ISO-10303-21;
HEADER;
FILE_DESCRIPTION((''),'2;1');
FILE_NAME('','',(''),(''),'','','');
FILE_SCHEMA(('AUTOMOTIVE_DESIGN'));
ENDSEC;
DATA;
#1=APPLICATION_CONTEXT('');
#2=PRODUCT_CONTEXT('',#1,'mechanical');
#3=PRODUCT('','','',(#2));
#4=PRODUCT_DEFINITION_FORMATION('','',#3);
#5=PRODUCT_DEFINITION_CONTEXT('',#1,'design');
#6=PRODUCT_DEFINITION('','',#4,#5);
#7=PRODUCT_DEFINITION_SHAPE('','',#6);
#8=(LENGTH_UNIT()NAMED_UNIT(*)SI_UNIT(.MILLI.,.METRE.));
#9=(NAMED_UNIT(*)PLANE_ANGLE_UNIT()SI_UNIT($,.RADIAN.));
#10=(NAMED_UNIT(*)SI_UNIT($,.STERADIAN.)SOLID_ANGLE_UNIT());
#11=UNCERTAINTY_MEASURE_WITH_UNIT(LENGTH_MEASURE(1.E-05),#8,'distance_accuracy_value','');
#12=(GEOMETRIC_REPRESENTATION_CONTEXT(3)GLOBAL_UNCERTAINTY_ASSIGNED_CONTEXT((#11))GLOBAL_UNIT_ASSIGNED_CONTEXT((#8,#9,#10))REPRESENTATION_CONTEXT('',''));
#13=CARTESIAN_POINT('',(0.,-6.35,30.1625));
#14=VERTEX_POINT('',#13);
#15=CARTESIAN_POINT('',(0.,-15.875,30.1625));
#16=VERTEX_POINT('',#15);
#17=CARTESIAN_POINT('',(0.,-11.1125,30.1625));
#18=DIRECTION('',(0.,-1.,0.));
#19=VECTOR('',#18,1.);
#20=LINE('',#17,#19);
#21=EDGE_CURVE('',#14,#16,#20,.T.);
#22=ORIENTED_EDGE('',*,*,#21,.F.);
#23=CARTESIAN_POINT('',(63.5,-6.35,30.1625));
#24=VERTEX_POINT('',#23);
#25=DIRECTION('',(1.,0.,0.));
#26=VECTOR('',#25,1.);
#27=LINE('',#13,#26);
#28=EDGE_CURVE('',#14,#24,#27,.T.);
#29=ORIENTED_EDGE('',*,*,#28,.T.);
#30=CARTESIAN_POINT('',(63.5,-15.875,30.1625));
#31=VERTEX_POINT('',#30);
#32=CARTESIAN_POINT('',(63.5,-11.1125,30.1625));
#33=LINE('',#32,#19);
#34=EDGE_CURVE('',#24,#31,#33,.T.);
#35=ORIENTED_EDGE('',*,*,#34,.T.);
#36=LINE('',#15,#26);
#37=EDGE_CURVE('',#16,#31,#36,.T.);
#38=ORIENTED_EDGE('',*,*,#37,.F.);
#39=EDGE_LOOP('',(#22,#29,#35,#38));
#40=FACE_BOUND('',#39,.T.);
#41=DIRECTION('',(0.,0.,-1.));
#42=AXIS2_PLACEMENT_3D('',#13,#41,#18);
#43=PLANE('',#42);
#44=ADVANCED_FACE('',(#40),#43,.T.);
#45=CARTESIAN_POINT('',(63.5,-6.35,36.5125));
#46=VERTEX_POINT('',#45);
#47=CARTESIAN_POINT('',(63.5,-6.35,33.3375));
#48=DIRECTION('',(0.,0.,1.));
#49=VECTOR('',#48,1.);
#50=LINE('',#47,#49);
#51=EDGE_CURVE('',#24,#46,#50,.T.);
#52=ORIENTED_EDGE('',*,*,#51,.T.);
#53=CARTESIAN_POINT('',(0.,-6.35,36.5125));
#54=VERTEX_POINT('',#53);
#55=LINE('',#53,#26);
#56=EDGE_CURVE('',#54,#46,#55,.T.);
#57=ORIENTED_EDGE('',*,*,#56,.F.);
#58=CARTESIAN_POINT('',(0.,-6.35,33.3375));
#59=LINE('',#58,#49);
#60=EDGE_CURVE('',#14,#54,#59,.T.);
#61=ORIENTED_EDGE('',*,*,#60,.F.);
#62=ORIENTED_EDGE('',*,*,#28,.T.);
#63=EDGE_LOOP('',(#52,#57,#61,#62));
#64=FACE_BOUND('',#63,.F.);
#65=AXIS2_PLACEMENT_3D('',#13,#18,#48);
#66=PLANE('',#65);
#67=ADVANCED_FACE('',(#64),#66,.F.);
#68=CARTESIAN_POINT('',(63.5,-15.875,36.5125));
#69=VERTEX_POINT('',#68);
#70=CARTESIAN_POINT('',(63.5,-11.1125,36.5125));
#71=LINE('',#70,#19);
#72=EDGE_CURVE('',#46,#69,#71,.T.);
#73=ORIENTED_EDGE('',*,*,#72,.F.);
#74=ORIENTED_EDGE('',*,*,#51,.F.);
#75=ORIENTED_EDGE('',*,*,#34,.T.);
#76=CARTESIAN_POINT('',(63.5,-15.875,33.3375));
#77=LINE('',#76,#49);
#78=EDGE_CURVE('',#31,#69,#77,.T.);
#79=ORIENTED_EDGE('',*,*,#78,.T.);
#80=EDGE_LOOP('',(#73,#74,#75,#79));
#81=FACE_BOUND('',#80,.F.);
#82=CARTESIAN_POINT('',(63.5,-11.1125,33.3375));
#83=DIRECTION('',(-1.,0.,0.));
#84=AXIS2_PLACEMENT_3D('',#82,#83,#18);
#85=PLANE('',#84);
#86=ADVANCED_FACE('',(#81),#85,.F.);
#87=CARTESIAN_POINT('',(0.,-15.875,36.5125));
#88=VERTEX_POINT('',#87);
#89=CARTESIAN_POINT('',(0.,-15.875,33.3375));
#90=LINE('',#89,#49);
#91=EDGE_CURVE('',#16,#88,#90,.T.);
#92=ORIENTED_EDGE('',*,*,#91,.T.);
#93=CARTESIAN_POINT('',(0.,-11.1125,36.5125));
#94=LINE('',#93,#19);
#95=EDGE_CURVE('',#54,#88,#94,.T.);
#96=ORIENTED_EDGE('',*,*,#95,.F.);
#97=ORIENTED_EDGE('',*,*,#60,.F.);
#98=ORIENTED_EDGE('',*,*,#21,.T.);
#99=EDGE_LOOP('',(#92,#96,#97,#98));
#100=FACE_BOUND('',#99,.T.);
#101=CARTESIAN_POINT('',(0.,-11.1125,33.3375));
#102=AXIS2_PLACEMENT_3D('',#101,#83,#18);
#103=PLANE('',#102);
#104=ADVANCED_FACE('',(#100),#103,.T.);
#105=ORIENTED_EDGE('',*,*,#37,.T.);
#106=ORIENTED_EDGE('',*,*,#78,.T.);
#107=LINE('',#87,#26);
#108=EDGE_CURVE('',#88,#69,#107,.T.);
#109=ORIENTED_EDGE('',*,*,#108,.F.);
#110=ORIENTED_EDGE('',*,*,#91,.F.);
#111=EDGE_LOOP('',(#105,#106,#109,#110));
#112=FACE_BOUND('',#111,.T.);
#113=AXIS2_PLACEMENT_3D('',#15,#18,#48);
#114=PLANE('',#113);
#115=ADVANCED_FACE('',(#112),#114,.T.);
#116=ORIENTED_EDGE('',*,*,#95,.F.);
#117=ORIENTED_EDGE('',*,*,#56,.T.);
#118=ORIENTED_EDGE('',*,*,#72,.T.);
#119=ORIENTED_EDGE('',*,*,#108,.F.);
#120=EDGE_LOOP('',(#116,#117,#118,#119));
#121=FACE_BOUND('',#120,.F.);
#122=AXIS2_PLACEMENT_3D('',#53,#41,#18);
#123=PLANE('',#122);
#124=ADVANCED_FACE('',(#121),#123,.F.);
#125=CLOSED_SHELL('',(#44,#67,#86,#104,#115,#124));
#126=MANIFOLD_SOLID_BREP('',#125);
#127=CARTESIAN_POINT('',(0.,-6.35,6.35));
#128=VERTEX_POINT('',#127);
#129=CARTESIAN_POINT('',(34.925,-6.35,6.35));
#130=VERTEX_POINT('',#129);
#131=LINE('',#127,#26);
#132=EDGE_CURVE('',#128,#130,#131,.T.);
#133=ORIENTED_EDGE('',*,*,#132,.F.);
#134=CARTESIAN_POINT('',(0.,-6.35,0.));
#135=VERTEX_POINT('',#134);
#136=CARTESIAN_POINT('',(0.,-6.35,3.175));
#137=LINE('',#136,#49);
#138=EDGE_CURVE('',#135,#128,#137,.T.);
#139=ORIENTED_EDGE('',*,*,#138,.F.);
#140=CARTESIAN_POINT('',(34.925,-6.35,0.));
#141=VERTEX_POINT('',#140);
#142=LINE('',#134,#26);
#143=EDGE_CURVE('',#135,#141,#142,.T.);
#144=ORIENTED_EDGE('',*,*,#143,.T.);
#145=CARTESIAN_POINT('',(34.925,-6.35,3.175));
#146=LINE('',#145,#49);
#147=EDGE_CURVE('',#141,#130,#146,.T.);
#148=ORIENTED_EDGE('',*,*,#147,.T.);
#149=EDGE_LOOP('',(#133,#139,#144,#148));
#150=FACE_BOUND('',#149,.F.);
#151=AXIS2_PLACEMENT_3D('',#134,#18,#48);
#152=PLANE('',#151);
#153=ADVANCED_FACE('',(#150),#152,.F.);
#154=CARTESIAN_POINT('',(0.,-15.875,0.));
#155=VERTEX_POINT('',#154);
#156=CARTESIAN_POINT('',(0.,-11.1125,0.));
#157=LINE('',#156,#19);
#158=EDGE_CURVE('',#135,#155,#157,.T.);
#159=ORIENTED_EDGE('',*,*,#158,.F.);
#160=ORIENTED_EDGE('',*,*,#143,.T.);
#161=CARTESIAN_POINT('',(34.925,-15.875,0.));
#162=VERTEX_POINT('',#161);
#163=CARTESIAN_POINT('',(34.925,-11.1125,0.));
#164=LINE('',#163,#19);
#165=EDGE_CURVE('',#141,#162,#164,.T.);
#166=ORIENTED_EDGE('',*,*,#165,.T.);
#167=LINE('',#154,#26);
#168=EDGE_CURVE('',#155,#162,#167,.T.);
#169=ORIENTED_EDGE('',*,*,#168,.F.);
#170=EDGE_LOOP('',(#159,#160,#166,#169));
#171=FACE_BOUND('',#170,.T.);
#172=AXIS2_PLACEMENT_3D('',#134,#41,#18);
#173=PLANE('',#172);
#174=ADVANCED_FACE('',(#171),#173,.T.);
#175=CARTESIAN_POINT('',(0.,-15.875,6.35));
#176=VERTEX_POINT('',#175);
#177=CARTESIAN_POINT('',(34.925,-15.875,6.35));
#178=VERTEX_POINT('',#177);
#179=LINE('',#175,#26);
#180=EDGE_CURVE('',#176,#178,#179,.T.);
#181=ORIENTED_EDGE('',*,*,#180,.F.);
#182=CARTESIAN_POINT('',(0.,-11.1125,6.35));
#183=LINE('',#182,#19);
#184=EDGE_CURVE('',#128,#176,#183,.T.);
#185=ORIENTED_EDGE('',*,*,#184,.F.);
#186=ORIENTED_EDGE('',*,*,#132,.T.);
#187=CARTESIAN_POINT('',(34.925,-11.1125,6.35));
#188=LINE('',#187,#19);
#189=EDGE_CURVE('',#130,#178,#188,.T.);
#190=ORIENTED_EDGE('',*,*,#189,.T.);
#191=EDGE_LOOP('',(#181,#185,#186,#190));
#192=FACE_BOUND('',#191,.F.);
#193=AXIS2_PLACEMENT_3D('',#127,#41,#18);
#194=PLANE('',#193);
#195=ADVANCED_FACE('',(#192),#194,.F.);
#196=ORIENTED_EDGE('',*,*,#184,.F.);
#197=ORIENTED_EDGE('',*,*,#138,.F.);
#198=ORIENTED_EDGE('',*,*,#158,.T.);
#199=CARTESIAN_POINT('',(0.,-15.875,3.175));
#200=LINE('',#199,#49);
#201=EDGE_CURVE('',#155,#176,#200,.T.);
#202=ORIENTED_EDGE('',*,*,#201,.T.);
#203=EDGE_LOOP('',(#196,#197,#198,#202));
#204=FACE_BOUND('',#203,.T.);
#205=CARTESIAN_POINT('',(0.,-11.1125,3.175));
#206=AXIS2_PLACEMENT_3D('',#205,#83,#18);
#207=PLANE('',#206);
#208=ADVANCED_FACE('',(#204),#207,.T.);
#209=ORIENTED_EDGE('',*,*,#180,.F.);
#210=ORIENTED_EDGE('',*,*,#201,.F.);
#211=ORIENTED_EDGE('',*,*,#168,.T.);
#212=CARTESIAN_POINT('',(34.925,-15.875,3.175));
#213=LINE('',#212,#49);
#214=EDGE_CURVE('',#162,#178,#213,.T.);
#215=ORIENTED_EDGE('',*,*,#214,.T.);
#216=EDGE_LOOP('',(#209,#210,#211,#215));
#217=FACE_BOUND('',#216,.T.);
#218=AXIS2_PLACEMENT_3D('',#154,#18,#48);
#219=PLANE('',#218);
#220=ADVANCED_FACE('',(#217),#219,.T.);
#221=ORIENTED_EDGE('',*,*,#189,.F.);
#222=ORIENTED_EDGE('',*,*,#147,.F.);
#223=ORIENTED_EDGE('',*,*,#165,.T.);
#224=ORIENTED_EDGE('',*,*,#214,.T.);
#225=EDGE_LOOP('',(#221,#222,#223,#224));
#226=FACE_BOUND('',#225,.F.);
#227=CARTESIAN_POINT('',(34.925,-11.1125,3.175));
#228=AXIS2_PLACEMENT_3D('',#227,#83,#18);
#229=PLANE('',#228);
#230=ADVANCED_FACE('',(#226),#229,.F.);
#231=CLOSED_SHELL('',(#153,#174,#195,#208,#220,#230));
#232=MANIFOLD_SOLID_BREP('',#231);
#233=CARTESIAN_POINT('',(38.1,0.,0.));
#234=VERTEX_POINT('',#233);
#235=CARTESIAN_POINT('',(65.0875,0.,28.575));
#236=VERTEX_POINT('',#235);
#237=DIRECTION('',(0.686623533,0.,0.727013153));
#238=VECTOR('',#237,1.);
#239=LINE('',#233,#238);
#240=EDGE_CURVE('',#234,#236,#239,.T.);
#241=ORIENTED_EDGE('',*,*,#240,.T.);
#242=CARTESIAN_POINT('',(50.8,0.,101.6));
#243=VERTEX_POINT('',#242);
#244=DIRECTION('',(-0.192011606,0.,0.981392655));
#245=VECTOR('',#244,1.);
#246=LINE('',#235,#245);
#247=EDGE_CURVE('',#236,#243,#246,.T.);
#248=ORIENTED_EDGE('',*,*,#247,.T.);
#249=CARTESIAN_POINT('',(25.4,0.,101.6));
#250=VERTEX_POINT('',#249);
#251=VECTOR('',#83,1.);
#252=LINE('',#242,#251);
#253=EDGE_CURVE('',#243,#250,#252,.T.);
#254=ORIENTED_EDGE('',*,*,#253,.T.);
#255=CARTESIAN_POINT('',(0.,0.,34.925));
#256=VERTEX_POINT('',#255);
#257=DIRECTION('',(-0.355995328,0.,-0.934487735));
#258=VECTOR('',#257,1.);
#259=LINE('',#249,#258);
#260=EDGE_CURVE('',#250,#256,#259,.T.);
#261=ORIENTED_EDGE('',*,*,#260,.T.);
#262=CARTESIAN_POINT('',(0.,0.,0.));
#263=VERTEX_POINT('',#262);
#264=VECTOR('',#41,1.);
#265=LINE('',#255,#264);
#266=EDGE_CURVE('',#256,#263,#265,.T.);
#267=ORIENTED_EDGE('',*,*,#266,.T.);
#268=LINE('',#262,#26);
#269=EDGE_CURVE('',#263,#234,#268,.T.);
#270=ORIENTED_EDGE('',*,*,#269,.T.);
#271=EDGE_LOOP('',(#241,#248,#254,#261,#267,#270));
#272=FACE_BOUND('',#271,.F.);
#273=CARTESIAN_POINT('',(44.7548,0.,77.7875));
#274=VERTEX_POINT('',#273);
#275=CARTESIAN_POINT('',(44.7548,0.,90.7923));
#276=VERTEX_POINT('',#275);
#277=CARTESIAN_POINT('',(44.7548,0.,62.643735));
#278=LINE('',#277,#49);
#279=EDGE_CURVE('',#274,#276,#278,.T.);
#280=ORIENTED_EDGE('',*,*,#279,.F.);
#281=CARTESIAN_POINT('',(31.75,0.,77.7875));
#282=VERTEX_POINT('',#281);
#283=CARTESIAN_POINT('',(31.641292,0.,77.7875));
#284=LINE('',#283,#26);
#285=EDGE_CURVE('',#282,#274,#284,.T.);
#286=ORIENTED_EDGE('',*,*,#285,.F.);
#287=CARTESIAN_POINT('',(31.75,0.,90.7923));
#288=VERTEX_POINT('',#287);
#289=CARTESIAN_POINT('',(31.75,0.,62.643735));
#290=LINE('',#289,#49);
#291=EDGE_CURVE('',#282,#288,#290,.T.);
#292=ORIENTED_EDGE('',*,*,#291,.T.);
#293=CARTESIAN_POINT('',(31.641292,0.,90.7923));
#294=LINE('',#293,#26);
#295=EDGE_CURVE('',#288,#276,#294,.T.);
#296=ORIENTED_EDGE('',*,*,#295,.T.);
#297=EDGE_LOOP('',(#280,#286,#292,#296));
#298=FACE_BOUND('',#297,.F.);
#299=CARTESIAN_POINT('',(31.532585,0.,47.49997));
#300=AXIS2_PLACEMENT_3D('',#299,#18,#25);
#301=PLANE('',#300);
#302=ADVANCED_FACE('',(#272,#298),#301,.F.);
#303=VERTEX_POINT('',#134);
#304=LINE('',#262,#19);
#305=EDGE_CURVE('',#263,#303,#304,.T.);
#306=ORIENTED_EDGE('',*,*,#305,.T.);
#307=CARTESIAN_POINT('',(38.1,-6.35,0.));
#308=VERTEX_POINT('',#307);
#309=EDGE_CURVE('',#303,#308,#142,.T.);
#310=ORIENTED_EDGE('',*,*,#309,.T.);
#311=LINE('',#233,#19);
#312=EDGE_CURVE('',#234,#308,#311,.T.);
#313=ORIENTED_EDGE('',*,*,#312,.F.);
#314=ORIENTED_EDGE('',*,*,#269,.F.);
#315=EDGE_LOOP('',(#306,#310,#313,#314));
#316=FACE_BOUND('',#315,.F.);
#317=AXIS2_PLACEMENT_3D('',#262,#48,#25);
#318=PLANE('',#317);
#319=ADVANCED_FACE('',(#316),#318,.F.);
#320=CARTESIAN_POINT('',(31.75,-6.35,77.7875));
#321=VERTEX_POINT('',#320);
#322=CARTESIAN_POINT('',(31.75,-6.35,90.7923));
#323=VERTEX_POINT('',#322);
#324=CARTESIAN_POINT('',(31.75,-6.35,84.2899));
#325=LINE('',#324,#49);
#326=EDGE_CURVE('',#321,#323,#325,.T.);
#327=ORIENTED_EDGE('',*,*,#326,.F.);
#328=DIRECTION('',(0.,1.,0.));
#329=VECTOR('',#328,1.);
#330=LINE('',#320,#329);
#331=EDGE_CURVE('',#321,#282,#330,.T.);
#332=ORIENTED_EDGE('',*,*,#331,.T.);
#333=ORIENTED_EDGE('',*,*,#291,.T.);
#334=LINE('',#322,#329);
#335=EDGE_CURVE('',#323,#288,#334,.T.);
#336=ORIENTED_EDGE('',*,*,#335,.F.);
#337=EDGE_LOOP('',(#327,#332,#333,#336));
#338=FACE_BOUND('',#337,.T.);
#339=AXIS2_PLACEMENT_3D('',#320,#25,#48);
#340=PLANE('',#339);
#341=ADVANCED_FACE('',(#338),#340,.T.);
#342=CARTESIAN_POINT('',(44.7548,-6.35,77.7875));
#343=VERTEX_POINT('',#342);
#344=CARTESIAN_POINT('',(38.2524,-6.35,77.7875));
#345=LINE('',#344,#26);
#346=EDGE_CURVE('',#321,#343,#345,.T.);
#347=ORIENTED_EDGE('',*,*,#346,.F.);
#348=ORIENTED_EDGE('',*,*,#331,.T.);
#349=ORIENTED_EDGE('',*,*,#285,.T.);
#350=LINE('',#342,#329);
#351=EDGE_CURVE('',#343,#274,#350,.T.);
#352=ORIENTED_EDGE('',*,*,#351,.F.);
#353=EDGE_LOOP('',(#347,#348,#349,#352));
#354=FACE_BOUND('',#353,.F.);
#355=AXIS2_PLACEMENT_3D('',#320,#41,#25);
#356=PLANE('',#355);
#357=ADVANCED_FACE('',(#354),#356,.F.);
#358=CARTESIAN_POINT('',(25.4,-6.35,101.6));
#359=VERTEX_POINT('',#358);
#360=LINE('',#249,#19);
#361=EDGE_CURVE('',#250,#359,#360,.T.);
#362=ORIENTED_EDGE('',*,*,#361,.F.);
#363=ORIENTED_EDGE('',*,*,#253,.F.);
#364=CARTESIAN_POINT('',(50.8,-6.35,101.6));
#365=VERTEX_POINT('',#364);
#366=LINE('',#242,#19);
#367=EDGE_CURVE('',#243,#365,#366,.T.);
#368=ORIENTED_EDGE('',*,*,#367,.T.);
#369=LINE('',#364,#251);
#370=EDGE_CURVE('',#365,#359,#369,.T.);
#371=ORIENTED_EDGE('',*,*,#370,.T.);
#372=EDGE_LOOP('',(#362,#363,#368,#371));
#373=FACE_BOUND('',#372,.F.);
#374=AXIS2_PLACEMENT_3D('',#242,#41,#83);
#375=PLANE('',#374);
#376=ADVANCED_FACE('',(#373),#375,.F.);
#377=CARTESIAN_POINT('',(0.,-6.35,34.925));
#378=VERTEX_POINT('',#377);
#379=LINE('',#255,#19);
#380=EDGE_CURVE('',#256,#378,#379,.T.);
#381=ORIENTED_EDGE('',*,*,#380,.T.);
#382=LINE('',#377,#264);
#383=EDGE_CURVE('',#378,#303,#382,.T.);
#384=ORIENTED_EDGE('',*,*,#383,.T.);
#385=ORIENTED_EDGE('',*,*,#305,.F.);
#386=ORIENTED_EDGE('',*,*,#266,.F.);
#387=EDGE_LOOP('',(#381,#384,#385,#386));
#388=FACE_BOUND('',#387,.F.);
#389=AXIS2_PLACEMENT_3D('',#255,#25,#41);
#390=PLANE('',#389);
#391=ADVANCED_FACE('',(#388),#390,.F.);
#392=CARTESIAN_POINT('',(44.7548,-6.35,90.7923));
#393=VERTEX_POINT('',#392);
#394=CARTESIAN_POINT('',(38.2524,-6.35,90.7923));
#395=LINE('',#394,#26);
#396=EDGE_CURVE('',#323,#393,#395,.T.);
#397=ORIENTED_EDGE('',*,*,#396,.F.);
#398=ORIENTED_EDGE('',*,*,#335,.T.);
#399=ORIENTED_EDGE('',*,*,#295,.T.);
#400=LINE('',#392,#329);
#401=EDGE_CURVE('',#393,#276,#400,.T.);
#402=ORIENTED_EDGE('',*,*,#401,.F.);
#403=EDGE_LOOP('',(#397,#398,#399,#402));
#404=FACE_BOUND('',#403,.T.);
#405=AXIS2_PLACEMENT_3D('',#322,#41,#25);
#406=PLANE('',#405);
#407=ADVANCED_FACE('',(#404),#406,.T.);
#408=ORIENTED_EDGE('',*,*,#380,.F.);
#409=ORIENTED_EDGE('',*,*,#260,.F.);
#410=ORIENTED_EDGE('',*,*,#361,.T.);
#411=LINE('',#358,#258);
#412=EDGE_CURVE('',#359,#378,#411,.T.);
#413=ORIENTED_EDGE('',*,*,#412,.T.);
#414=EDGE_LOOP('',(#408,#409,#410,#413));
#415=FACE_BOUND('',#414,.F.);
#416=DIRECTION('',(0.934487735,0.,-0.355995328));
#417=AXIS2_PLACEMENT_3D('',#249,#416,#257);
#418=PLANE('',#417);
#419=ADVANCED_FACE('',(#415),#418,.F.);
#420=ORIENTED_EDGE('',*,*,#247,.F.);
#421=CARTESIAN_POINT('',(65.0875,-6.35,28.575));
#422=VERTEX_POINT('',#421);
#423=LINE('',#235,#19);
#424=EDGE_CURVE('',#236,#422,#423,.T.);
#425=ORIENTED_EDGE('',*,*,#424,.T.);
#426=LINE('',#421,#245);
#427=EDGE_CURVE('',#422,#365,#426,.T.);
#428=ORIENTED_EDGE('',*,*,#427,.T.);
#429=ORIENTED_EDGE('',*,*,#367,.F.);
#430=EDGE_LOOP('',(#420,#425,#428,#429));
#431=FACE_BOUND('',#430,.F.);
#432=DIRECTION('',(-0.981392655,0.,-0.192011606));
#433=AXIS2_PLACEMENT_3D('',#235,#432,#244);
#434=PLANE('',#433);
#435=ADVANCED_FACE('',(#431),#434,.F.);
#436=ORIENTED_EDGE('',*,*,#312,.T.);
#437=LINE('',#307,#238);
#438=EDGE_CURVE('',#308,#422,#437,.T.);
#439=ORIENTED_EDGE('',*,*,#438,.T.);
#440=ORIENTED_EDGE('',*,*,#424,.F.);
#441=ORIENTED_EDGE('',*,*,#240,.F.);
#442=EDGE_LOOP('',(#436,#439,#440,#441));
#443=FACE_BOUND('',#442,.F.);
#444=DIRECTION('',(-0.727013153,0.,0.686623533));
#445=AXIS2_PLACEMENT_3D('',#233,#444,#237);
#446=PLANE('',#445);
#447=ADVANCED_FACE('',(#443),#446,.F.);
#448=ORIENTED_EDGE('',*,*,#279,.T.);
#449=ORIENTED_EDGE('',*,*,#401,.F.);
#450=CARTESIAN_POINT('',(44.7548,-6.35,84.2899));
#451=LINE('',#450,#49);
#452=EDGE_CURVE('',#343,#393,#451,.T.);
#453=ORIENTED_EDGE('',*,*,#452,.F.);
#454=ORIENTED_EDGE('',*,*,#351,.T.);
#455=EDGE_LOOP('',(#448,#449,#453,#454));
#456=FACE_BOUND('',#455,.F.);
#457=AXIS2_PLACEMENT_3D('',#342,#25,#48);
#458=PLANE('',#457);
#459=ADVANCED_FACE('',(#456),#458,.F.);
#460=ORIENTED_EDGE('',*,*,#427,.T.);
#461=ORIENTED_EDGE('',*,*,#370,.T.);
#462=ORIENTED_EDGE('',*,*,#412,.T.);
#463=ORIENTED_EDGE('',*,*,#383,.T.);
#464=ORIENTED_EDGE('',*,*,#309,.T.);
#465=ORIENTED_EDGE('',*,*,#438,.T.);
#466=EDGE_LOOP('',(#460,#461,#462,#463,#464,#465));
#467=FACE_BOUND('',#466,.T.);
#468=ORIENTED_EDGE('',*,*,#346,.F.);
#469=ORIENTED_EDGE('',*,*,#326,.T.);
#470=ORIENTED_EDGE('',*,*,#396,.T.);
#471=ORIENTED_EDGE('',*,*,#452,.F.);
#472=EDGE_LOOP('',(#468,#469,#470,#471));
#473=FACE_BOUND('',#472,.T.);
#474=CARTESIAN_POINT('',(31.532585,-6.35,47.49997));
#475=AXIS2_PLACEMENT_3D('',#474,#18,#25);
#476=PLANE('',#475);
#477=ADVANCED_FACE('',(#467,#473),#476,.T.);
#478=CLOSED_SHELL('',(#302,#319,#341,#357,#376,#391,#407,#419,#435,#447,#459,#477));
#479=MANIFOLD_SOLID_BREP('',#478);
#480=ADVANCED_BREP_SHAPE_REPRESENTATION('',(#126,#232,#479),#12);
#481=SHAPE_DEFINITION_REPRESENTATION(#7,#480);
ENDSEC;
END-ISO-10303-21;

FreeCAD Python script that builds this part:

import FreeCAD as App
import Part
import Sketcher
Q = App.Units.Quantity


def add_polygon(sketch, points):
    """Adds a closed chain of lines whose ends are joined by coincident constraints."""
    first, n = sketch.GeometryCount, len(points)
    for a, b in zip(points, points[1:] + points[:1]):
        sketch.addGeometry(Part.LineSegment(App.Vector(*a, 0), App.Vector(*b, 0)), False)
    for i in range(n):
        sketch.addConstraint(Sketcher.Constraint("Coincident", first + i, 2, first + (i + 1) % n, 1))

doc = App.newDocument("Part")
body = doc.addObject("PartDesign::Body", "Body")

# Sketch on XZ plane
sketch1 = body.newObject("Sketcher::SketchObject", "Sketch")
sketch1.AttachmentSupport = (doc.getObject("XZ_Plane"), [""])
sketch1.MapMode = "FlatFace"
add_polygon(sketch1, [(0, 35), (0, 0), (38, 0), (65, 29), (51, 102), (25, 102)])  # lines 0-5
sketch1.addConstraint([
    Sketcher.Constraint("Vertical", 0),
    Sketcher.Constraint("Horizontal", 1),
    Sketcher.Constraint("Horizontal", 4),
    Sketcher.Constraint("Coincident", 0, 2, -1, 1),
    Sketcher.Constraint("DistanceX", 4, 2, 4, 1, Q("1 in")),
    Sketcher.Constraint("DistanceX", 1, 1, 1, 2, Q("1.5 in")),
    Sketcher.Constraint("DistanceX", -1, 1, 3, 2, Q("2 in")),
    Sketcher.Constraint("DistanceY", -1, 1, 3, 2, Q("4 in")),
    Sketcher.Constraint("DistanceY", 0, 2, 0, 1, Q("1.375 in")),
    Sketcher.Constraint("DistanceY", 2, 2, 5, 2, Q("0.25 in")),
    Sketcher.Constraint("DistanceX", -1, 1, 2, 2, Q("2.5625 in")),
])
pad1 = body.newObject("PartDesign::Pad", "Pad")
pad1.Profile = sketch1
pad1.Length = Q("0.25 in")

# Sketch on XZ plane
sketch2 = body.newObject("Sketcher::SketchObject", "Sketch001")
sketch2.AttachmentSupport = (doc.getObject("XZ_Plane"), [""])
sketch2.MapMode = "FlatFace"
sketch2.AttachmentOffset = App.Placement(App.Vector(0, 0, 0.25 * 25.4), App.Rotation())
add_polygon(sketch2, [(32, 91), (32, 78), (45, 78), (45, 91)])  # lines 0-3
sketch2.addConstraint([
    Sketcher.Constraint("Vertical", 0),
    Sketcher.Constraint("Horizontal", 1),
    Sketcher.Constraint("Vertical", 2),
    Sketcher.Constraint("Horizontal", 3),
    Sketcher.Constraint("Equal", 3, 0),
    Sketcher.Constraint("DistanceX", 1, 1, 1, 2, Q("0.512 in")),
    Sketcher.Constraint("DistanceX", -1, 1, 0, 2, Q("1.25 in")),
    Sketcher.Constraint("DistanceY", -1, 1, 0, 2, Q("3.0625 in")),
])
pocket1 = body.newObject("PartDesign::Pocket", "Pocket")
pocket1.Profile = sketch2
pocket1.Length = Q("1 in")
body2 = doc.addObject("PartDesign::Body", "Body001")

# Sketch on YZ plane
sketch3 = body2.newObject("Sketcher::SketchObject", "Sketch002")
sketch3.AttachmentSupport = (doc.getObject("YZ_Plane001"), [""])
sketch3.MapMode = "FlatFace"
add_polygon(sketch3, [(-6, 6), (-6, 0), (-16, 0), (-16, 6)])  # lines 0-3
sketch3.addConstraint([
    Sketcher.Constraint("Vertical", 0),
    Sketcher.Constraint("Horizontal", 1),
    Sketcher.Constraint("Vertical", 2),
    Sketcher.Constraint("Horizontal", 3),
    Sketcher.Constraint("PointOnObject", 0, 2, -1),
    Sketcher.Constraint("DistanceY", 0, 2, 0, 1, Q("0.25 in")),
    Sketcher.Constraint("DistanceX", 1, 2, 1, 1, Q("0.375 in")),
    Sketcher.Constraint("DistanceX", 0, 2, -1, 1, Q("0.25 in")),
])
pad2 = body2.newObject("PartDesign::Pad", "Pad001")
pad2.Profile = sketch3
pad2.Length = Q("1.375 in")
body3 = doc.addObject("PartDesign::Body", "Body002")

# Sketch on YZ plane
sketch4 = body3.newObject("Sketcher::SketchObject", "Sketch003")
sketch4.AttachmentSupport = (doc.getObject("YZ_Plane002"), [""])
sketch4.MapMode = "FlatFace"
add_polygon(sketch4, [(-6, 37), (-6, 30), (-16, 30), (-16, 37)])  # lines 0-3
sketch4.addConstraint([
    Sketcher.Constraint("Vertical", 0),
    Sketcher.Constraint("Horizontal", 1),
    Sketcher.Constraint("Vertical", 2),
    Sketcher.Constraint("Horizontal", 3),
    Sketcher.Constraint("DistanceY", 0, 2, 0, 1, Q("0.25 in")),
    Sketcher.Constraint("DistanceX", 1, 2, 1, 1, Q("0.375 in")),
    Sketcher.Constraint("DistanceX", 0, 2, -1, 1, Q("0.25 in")),
    Sketcher.Constraint("DistanceY", -1, 1, 0, 2, Q("1.1875 in")),
])
pad3 = body3.newObject("PartDesign::Pad", "Pad002")
pad3.Profile = sketch4
pad3.Length = Q("2.5 in")

doc.recompute()
